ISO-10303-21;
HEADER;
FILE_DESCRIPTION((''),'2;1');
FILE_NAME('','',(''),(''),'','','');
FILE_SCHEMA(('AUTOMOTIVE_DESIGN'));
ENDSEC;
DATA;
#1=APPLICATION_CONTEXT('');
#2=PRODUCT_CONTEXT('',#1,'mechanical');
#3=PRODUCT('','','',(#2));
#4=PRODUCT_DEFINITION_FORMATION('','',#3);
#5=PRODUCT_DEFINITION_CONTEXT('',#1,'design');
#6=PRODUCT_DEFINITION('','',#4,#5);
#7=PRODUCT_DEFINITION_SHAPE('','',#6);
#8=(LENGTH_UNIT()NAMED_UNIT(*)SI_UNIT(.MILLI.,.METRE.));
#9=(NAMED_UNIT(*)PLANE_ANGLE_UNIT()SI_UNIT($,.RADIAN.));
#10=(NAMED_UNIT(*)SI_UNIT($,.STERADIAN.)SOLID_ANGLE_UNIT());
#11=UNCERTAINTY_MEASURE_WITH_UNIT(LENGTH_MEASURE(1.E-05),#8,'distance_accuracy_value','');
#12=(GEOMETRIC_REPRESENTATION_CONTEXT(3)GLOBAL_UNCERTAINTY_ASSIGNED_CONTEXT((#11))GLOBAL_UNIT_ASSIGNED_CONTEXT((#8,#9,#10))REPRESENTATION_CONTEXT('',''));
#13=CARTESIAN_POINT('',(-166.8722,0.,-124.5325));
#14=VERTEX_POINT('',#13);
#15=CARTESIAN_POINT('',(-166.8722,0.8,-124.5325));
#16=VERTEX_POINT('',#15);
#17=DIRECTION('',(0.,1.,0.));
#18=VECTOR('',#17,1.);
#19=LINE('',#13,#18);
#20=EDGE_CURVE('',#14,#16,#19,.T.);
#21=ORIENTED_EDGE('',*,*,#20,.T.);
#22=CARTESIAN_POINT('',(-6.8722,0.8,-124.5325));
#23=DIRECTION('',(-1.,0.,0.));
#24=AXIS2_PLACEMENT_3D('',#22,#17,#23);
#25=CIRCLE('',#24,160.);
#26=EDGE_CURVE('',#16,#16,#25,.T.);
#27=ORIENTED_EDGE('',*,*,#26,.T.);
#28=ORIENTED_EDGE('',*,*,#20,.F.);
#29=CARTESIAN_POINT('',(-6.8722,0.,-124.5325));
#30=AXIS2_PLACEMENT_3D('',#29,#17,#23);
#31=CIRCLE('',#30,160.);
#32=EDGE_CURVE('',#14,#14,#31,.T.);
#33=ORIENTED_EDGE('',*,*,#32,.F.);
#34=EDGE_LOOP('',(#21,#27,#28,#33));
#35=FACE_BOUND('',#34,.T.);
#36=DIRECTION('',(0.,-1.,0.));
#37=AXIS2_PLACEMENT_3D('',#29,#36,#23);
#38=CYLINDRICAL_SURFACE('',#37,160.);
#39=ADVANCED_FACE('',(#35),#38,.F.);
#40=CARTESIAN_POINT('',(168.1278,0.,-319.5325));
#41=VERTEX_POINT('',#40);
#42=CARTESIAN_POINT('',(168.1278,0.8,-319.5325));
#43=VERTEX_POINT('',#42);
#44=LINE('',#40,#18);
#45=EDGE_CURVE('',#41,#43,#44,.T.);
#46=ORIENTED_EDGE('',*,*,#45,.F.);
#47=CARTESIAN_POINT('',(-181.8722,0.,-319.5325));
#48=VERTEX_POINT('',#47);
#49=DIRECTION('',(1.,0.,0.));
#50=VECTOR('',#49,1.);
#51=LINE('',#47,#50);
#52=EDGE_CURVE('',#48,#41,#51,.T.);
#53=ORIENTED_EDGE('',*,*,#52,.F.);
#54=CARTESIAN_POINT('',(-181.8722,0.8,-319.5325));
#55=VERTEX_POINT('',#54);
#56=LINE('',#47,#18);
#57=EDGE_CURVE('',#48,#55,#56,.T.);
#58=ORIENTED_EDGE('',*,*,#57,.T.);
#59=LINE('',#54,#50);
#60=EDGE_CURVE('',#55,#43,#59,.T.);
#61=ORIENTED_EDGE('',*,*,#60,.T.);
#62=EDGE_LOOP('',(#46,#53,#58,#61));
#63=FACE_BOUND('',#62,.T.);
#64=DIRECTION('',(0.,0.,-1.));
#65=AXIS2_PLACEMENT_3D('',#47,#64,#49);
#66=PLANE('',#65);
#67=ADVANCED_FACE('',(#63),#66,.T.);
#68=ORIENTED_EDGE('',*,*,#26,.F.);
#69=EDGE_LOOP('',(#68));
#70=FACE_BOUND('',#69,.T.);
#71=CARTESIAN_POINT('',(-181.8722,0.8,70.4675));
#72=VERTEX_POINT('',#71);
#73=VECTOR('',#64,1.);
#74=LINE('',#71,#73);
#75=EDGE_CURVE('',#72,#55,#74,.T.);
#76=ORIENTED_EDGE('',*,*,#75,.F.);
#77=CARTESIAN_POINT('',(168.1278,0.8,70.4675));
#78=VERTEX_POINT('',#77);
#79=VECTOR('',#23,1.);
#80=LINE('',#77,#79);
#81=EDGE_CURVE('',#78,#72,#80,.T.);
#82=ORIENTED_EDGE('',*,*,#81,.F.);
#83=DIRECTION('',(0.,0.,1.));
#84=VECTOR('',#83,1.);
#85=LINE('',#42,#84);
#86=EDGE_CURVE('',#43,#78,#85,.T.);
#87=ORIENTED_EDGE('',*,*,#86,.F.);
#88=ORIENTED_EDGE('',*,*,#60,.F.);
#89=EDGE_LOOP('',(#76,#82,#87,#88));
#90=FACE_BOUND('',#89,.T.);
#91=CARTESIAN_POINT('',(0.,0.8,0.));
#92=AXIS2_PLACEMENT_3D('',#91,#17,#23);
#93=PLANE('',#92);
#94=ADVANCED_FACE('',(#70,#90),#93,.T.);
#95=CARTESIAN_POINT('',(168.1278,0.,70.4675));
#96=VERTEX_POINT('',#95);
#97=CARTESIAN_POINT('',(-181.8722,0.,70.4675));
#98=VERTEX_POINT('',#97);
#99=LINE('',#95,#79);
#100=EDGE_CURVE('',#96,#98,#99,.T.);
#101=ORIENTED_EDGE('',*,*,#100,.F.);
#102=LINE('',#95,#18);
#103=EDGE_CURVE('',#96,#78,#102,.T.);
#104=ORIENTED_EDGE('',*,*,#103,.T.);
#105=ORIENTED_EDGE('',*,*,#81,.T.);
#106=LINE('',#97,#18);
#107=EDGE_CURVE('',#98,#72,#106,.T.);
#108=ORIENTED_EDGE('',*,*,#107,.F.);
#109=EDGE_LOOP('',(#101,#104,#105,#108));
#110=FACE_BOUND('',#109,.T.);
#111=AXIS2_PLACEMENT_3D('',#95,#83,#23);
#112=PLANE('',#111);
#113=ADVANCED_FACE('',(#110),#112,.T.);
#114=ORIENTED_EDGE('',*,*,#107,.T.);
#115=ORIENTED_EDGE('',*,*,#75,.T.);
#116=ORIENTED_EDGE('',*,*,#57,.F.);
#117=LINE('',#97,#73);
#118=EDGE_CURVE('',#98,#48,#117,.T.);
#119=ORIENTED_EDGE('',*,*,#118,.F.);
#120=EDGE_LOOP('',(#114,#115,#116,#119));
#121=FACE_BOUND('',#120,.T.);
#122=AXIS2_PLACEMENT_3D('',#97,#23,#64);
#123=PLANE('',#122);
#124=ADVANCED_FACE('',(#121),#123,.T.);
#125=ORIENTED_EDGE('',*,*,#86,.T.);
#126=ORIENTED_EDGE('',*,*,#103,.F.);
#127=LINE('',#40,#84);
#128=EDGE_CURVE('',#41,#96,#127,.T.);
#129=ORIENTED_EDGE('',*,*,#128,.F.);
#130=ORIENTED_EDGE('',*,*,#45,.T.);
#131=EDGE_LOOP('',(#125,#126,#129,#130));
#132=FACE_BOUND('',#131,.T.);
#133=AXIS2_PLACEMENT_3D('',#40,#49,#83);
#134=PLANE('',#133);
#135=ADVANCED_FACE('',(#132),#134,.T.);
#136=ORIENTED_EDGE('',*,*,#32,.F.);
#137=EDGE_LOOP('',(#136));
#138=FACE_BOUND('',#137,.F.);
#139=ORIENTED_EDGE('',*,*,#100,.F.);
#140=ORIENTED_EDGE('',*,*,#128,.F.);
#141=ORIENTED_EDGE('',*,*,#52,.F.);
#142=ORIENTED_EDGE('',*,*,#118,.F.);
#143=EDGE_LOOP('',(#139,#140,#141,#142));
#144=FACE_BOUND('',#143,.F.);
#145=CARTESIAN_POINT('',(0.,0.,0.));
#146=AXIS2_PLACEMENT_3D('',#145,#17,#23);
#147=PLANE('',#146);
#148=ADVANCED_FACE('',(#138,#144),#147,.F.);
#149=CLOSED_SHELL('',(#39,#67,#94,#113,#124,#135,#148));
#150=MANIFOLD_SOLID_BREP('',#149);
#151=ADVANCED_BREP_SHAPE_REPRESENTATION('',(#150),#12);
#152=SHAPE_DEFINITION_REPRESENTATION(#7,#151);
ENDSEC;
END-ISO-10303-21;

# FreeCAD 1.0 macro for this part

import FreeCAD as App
import Part
import Sketcher
Q = App.Units.Quantity

doc = App.newDocument("Part")
body = doc.addObject("PartDesign::Body", "Body")

# Sketch on XZ plane
sketch1 = body.newObject("Sketcher::SketchObject", "Sketch")
sketch1.AttachmentSupport = (doc.getObject("XZ_Plane"), [""])
sketch1.MapMode = "FlatFace"
sketch1.addGeometry([
    Part.LineSegment(App.Vector(-182, 70, 0), App.Vector(168, 70, 0)),  # 0
    Part.LineSegment(App.Vector(168, 70, 0), App.Vector(168, -320, 0)),  # 1
    Part.LineSegment(App.Vector(168, -320, 0), App.Vector(-182, -320, 0)),  # 2
    Part.LineSegment(App.Vector(-182, -320, 0), App.Vector(-182, 70, 0)),  # 3
    Part.Circle(App.Vector(-7, -125, 0), App.Vector(0, 0, 1), 160),  # 4
], False)
sketch1.addConstraint([
    Sketcher.Constraint("Coincident", 0, 2, 1, 1),
    Sketcher.Constraint("Coincident", 1, 2, 2, 1),
    Sketcher.Constraint("Coincident", 2, 2, 3, 1),
    Sketcher.Constraint("Coincident", 3, 2, 0, 1),
    Sketcher.Constraint("Horizontal", 0),
    Sketcher.Constraint("Vertical", 1),
    Sketcher.Constraint("Horizontal", 2),
    Sketcher.Constraint("Vertical", 3),
    Sketcher.Constraint("Diameter", 4, Q("320 mm")),
    Sketcher.Constraint("DistanceX", 0, 1, 0, 2, Q("350 mm")),
    Sketcher.Constraint("DistanceY", 1, 2, 1, 1, Q("390 mm")),
    Sketcher.Constraint("DistanceX", 4, 3, 0, 2, Q("175 mm")),
    Sketcher.Constraint("DistanceY", 4, 3, 0, 2, Q("195 mm")),
    Sketcher.Constraint("DistanceX", 4, 3, -1, 1, Q("6.8722 mm")),
    Sketcher.Constraint("DistanceY", 4, 3, -1, 1, Q("124.5325 mm")),
])
pad1 = body.newObject("PartDesign::Pad", "Pad")
pad1.Profile = sketch1
pad1.Length = 0.8
pad1.Reversed = True

doc.recompute()
